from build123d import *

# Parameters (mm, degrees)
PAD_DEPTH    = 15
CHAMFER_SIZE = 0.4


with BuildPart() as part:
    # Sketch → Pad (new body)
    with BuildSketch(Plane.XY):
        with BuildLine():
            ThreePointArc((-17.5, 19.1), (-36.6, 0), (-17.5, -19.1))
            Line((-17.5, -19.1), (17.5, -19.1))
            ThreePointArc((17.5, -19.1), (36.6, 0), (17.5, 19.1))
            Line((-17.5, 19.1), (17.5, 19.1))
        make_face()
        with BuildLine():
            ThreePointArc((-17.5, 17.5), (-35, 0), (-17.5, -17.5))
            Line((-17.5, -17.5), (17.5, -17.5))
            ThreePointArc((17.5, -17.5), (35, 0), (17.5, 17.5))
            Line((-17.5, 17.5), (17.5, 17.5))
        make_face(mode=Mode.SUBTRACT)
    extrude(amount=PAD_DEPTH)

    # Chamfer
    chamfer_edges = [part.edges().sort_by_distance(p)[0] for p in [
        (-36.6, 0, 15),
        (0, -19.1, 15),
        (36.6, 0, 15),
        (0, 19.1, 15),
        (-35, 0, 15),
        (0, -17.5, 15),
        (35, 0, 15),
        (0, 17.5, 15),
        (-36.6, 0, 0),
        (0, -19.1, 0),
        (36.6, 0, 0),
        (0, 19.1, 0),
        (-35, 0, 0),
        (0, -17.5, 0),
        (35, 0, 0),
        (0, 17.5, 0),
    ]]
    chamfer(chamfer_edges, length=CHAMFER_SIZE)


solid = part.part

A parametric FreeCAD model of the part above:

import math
import FreeCAD as App
import Part
import Sketcher
from FreeCAD import Vector
Q = App.Units.Quantity


def edges_at(feature, points):
    """Names of the edges that pass closest to the given points."""
    edges = feature.Shape.Edges
    near = lambda p: min(range(len(edges)), key=lambda i: edges[i].distToShape(Part.Vertex(*p))[0])
    return sorted({f"Edge{near(p) + 1}" for p in points})

doc = App.newDocument("Part")
body = doc.addObject("PartDesign::Body", "Body")

# Sketch on XY plane
sketch1 = body.newObject("Sketcher::SketchObject", "Sketch")
sketch1.AttachmentSupport = (doc.getObject("XY_Plane"), [""])
sketch1.MapMode = "FlatFace"
sketch1.addGeometry(Part.ArcOfCircle(Part.Circle(Vector(-18, 0, 0), Vector(0, 0, 1), 19), math.radians(90), math.radians(270)), False)
sketch1.addGeometry(Part.LineSegment(Vector(-18, -19, 0), Vector(18, -19, 0)), False)
sketch1.addGeometry(Part.ArcOfCircle(Part.Circle(Vector(18, 0, 0), Vector(0, 0, 1), 19), math.radians(-90), math.radians(90)), False)
sketch1.addGeometry(Part.LineSegment(Vector(18, 19, 0), Vector(-18, 19, 0)), False)
sketch1.addGeometry(Part.ArcOfCircle(Part.Circle(Vector(-18, 0, 0), Vector(0, 0, 1), 18), math.radians(90), math.radians(270)), False)
sketch1.addGeometry(Part.LineSegment(Vector(-18, 18, 0), Vector(18, 18, 0)), False)
sketch1.addGeometry(Part.ArcOfCircle(Part.Circle(Vector(18, 0, 0), Vector(0, 0, 1), 18), math.radians(-90), math.radians(90)), False)
sketch1.addGeometry(Part.LineSegment(Vector(18, -18, 0), Vector(-18, -18, 0)), False)
sketch1.addConstraint(Sketcher.Constraint("Tangent", 0, 2, 1, 1))
sketch1.addConstraint(Sketcher.Constraint("Tangent", 1, 2, 2, 1))
sketch1.addConstraint(Sketcher.Constraint("Tangent", 2, 2, 3, 1))
sketch1.addConstraint(Sketcher.Constraint("Tangent", 3, 2, 0, 1))
sketch1.addConstraint(Sketcher.Constraint("Tangent", 4, 1, 5, 1))
sketch1.addConstraint(Sketcher.Constraint("Tangent", 5, 2, 6, 2))
sketch1.addConstraint(Sketcher.Constraint("Tangent", 6, 1, 7, 1))
sketch1.addConstraint(Sketcher.Constraint("Tangent", 7, 2, 4, 2))
sketch1.addConstraint(Sketcher.Constraint("Horizontal", 1))
sketch1.addConstraint(Sketcher.Constraint("Horizontal", 3))
sketch1.addConstraint(Sketcher.Constraint("Horizontal", 5))
sketch1.addConstraint(Sketcher.Constraint("Horizontal", 7))
sketch1.addConstraint(Sketcher.Constraint("Coincident", 4, 3, 0, 3))
sketch1.addConstraint(Sketcher.Constraint("Symmetric", 0, 3, 2, 3, -1, 1))
sketch1.addConstraint(Sketcher.Constraint("Vertical", 6, 3, 1, 2))
sketch1.addConstraint(Sketcher.Constraint("Radius", 0, Q("19.1 mm")))
sketch1.addConstraint(Sketcher.Constraint("Radius", 4, Q("17.5 mm")))
sketch1.addConstraint(Sketcher.Constraint("DistanceX", 1, 1, 1, 2, Q("35 mm")))
pad1 = body.newObject("PartDesign::Pad", "Pad")
pad1.Profile = sketch1
pad1.Length = 15
doc.recompute()

chamfer = body.newObject("PartDesign::Chamfer", "Chamfer")
chamfer.Base = (pad1, edges_at(pad1, [
    (-36.6, 0, 15),
    (0, -19.1, 15),
    (36.6, 0, 15),
    (0, 19.1, 15),
    (-35, 0, 15),
    (0, -17.5, 15),
    (35, 0, 15),
    (0, 17.5, 15),
    (-36.6, 0, 0),
    (0, -19.1, 0),
    (36.6, 0, 0),
    (0, 19.1, 0),
    (-35, 0, 0),
    (0, -17.5, 0),
    (35, 0, 0),
    (0, 17.5, 0),
]))
chamfer.Size = 0.4

doc.recompute()
